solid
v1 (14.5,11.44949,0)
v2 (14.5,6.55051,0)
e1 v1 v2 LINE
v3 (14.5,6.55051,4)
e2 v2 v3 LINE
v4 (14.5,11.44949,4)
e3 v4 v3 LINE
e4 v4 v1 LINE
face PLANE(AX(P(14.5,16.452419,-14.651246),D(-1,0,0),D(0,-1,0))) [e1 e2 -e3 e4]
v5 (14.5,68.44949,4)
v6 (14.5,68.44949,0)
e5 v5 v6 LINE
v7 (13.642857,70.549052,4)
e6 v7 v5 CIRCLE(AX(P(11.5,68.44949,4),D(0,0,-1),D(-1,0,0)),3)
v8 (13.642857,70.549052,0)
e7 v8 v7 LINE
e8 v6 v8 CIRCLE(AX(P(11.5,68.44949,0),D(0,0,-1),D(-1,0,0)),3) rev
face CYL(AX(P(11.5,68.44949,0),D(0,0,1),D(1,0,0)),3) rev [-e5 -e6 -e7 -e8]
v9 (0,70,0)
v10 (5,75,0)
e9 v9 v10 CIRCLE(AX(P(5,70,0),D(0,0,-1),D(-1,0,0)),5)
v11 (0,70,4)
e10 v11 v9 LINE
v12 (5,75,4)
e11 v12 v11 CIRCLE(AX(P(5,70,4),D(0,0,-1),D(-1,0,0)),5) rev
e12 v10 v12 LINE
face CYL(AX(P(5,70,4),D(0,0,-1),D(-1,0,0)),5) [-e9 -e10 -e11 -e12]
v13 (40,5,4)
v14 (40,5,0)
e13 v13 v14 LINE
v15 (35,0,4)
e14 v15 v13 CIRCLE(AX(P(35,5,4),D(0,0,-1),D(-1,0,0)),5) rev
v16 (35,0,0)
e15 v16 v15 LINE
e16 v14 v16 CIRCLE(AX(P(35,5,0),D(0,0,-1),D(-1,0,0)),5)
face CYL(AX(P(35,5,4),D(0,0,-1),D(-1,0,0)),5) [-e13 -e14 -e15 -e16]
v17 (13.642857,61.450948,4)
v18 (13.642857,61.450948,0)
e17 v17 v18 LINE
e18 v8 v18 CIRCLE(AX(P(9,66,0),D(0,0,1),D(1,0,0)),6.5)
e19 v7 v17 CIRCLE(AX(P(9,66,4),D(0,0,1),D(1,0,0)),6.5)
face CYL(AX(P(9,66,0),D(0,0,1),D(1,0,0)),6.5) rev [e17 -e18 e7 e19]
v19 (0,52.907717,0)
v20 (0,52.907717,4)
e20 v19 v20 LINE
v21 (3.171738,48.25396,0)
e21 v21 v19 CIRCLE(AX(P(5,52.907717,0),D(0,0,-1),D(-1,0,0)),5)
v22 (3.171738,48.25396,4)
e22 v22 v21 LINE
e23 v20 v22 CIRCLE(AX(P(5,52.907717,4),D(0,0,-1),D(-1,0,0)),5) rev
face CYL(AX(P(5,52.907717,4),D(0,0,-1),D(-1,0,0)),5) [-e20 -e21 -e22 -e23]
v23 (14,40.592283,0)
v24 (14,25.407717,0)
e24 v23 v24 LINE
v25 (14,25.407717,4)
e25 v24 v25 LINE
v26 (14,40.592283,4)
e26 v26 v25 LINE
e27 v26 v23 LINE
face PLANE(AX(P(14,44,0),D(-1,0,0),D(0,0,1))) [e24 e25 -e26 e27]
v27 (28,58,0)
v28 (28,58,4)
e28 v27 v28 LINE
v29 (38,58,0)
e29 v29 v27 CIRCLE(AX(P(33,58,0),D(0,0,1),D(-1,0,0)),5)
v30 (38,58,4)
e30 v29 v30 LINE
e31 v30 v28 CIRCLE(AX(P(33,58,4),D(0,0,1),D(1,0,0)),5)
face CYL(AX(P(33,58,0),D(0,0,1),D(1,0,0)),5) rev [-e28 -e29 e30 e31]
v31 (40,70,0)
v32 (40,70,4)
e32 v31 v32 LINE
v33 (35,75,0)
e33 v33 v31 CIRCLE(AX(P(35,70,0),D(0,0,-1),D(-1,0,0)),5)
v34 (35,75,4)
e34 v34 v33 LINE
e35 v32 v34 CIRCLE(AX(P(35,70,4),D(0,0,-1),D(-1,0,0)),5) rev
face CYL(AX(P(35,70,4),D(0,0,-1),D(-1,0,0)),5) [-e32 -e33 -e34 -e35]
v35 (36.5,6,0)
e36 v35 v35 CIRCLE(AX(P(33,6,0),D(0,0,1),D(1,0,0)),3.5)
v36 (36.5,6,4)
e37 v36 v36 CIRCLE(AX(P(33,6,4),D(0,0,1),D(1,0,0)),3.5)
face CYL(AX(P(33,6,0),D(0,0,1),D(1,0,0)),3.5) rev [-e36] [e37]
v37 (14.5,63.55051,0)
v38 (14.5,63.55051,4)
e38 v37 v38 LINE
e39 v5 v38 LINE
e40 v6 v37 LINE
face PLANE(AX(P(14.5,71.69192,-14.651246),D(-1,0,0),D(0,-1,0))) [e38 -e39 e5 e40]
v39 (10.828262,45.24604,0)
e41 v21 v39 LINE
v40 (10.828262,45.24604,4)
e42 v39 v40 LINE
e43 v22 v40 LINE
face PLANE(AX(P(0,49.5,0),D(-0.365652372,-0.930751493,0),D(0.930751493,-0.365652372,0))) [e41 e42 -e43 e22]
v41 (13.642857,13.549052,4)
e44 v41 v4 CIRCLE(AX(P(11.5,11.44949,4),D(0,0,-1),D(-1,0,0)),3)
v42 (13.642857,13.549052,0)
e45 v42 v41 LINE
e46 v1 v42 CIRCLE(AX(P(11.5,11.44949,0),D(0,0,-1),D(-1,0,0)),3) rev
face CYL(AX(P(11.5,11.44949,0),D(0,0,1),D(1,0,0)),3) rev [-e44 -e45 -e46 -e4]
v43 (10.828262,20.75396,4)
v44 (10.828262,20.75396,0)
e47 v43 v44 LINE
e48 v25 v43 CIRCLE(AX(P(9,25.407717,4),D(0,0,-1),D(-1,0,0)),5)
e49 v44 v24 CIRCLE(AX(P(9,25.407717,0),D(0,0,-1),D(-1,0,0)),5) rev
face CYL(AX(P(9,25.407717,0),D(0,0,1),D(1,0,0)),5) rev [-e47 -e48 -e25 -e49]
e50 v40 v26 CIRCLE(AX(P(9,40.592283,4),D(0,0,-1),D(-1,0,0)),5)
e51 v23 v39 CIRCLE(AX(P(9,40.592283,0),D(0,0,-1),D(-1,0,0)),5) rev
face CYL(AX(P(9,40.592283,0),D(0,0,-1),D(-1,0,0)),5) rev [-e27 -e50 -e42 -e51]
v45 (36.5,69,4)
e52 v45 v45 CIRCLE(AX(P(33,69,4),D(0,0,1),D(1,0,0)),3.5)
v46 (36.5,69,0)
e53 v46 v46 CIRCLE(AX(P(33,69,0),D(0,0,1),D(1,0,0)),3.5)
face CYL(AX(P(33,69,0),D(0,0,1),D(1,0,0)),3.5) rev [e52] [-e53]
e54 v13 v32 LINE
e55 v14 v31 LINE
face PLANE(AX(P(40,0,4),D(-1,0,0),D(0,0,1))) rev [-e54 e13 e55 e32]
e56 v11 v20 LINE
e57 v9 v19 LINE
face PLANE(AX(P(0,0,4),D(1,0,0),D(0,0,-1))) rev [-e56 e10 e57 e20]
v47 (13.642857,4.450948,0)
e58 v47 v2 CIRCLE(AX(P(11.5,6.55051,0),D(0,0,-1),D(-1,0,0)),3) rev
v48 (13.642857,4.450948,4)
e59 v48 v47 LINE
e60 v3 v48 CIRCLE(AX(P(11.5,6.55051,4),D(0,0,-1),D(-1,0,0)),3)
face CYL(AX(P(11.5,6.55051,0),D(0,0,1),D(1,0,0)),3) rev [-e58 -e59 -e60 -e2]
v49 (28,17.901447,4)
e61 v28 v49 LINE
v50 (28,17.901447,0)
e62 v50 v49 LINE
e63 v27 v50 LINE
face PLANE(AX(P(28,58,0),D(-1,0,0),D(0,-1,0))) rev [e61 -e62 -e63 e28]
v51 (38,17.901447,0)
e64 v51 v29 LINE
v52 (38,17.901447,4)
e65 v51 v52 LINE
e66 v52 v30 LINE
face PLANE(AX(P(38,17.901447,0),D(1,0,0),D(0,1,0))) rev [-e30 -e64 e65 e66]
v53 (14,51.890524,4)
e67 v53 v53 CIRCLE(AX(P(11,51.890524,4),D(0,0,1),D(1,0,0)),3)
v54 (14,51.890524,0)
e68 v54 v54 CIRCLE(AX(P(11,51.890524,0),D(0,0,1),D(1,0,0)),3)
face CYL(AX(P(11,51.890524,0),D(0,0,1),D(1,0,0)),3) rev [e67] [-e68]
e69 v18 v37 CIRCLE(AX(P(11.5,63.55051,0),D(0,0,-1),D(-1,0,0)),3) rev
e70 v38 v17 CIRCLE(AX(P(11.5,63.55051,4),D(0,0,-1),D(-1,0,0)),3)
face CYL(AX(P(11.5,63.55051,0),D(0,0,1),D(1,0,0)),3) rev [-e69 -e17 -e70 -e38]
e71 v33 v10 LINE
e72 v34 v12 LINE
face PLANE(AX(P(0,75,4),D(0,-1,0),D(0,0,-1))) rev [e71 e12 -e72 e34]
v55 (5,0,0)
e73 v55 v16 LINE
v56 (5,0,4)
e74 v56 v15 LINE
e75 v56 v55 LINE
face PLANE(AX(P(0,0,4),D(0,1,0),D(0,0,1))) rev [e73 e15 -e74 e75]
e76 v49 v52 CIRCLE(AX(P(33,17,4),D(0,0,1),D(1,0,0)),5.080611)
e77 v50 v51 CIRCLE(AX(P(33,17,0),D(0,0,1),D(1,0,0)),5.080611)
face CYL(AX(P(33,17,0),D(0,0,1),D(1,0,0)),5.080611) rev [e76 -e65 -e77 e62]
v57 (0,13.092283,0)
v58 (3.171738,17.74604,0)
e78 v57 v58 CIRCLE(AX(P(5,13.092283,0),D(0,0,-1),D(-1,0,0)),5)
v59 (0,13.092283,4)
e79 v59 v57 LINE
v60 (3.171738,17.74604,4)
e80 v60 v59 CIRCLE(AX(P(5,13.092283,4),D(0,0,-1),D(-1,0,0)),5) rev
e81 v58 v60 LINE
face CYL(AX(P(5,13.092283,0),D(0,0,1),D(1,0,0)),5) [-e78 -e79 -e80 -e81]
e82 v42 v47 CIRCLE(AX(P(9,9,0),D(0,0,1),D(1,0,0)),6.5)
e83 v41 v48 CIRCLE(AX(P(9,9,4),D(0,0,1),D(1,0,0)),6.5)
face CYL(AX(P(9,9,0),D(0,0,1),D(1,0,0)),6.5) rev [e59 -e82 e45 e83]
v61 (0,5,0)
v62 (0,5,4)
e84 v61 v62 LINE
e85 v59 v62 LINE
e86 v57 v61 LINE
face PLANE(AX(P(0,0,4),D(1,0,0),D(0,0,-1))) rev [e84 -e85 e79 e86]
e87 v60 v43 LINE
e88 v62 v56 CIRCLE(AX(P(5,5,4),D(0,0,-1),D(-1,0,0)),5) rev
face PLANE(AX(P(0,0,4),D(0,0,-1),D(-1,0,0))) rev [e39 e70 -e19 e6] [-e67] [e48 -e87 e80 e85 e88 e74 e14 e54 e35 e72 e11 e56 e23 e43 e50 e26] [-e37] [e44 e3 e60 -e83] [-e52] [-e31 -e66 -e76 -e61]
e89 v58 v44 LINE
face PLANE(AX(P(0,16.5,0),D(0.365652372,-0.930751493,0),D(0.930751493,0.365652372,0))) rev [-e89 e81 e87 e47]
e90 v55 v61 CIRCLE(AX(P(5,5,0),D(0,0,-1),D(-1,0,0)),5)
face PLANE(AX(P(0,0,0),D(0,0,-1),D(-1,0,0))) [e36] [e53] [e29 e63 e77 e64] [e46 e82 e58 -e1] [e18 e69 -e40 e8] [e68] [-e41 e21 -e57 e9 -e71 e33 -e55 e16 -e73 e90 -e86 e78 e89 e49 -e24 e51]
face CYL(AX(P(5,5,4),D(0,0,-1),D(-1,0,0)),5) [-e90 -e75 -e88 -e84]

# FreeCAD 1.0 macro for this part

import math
import FreeCAD as App
import Part
import Sketcher


def edges_at(feature, points):
    """Names of the edges that pass closest to the given points."""
    edges = feature.Shape.Edges
    near = lambda p: min(range(len(edges)), key=lambda i: edges[i].distToShape(Part.Vertex(*p))[0])
    return sorted({f"Edge{near(p) + 1}" for p in points})


def add_polygon(sketch, points):
    """Adds a closed chain of lines whose ends are joined by coincident constraints."""
    first, n = sketch.GeometryCount, len(points)
    for a, b in zip(points, points[1:] + points[:1]):
        sketch.addGeometry(Part.LineSegment(App.Vector(*a, 0), App.Vector(*b, 0)), False)
    for i in range(n):
        sketch.addConstraint(Sketcher.Constraint("Coincident", first + i, 2, first + (i + 1) % n, 1))

doc = App.newDocument("Part")
body = doc.addObject("PartDesign::Body", "Body")

# Sketch on XY plane
sketch1 = body.newObject("Sketcher::SketchObject", "Sketch")
sketch1.AttachmentSupport = (doc.getObject("XY_Plane"), [""])
sketch1.MapMode = "FlatFace"
add_polygon(sketch1, [(0, 75), (0, 0), (40, 0), (40, 75)])  # lines 0-3
sketch1.addConstraint([
    Sketcher.Constraint("Vertical", 0),
    Sketcher.Constraint("Horizontal", 1),
    Sketcher.Constraint("Vertical", 2),
    Sketcher.Constraint("Horizontal", 3),
    Sketcher.Constraint("Coincident", 0, 2, -1, 1),
    Sketcher.Constraint("DistanceX", 1, 1, 1, 2, 40.0),
    Sketcher.Constraint("DistanceY", 0, 2, 0, 1, 75.0),
])
pad1 = body.newObject("PartDesign::Pad", "Pad")
pad1.Profile = sketch1
pad1.Length = 4

# Sketch on XY plane
sketch2 = body.newObject("Sketcher::SketchObject", "Sketch001")
sketch2.AttachmentSupport = (doc.getObject("XY_Plane"), [""])
sketch2.MapMode = "FlatFace"
sketch2.AttachmentOffset = App.Placement(App.Vector(0, 0, 4), App.Rotation())
add_polygon(sketch2, [(0, 49.5), (0, 16.5), (14, 22), (14, 44)])  # lines 0-3
sketch2.addConstraint([
    Sketcher.Constraint("Vertical", 0),
    Sketcher.Constraint("Vertical", 2),
    Sketcher.Constraint("PointOnObject", 0, 2, -2),
    Sketcher.Constraint("Equal", 1, 3),
    Sketcher.Constraint("DistanceY", 0, 2, 0, 1, 33.0),
    Sketcher.Constraint("DistanceY", 2, 1, 2, 2, 22.0),
    Sketcher.Constraint("DistanceX", -1, 1, 1, 2, 14.0),
    Sketcher.Constraint("DistanceY", -1, 1, 1, 2, 22.0),
])
pocket1 = body.newObject("PartDesign::Pocket", "Pocket")
pocket1.Profile = sketch2
pocket1.Type = "ThroughAll"

# Sketch on XY plane
sketch3 = body.newObject("Sketcher::SketchObject", "Sketch002")
sketch3.AttachmentSupport = (doc.getObject("XY_Plane"), [""])
sketch3.MapMode = "FlatFace"
sketch3.AttachmentOffset = App.Placement(App.Vector(0, 0, 4), App.Rotation())
sketch3.addGeometry([
    Part.Circle(App.Vector(9, 66, 0), App.Vector(0, 0, 1), 6.5),
    Part.Circle(App.Vector(9, 9, 0), App.Vector(0, 0, 1), 6.5),
    Part.Circle(App.Vector(11, 51.890524, 0), App.Vector(0, 0, 1), 3),
], False)
sketch3.addConstraint([
    Sketcher.Constraint("Equal", 0, 1),
    Sketcher.Constraint("Vertical", 0, 3, 1, 3),
    Sketcher.Constraint("Diameter", 0, 13.0),
    Sketcher.Constraint("Diameter", 2, 6.0),
    Sketcher.Constraint("DistanceX", -1, 1, 0, 3, 9.0),
    Sketcher.Constraint("DistanceY", -1, 1, 0, 3, 66.0),
    Sketcher.Constraint("DistanceY", -1, 1, 1, 3, 9.0),
    Sketcher.Constraint("DistanceX", -1, 1, 2, 3, 11.0),
    Sketcher.Constraint("DistanceY", -1, 1, 2, 3, 51.890524),
])
pocket2 = body.newObject("PartDesign::Pocket", "Pocket001")
pocket2.Profile = sketch3
pocket2.Type = "ThroughAll"
doc.recompute()

fillet = body.newObject("PartDesign::Fillet", "Fillet")
fillet.Base = (pocket2, edges_at(pocket2, [
    (0, 16.5, 2),
    (0, 49.5, 2),
    (14, 44, 2),
    (14, 22, 2),
    (0, 75, 2),
    (40, 75, 2),
    (40, 0, 2),
    (0, 0, 2),
]))
fillet.Radius = 5

# Sketch on XY plane
sketch4 = body.newObject("Sketcher::SketchObject", "Sketch003")
sketch4.AttachmentSupport = (doc.getObject("XY_Plane"), [""])
sketch4.MapMode = "FlatFace"
sketch4.AttachmentOffset = App.Placement(App.Vector(0, 0, 4), App.Rotation())
sketch4.addGeometry([
    Part.Circle(App.Vector(33, 69, 0), App.Vector(0, 0, 1), 3.5),
    Part.Circle(App.Vector(33, 6, 0), App.Vector(0, 0, 1), 3.5),
], False)
sketch4.addConstraint([
    Sketcher.Constraint("Equal", 0, 1),
    Sketcher.Constraint("Vertical", 0, 3, 1, 3),
    Sketcher.Constraint("Diameter", 0, 7.0),
    Sketcher.Constraint("DistanceX", -1, 1, 0, 3, 33.0),
    Sketcher.Constraint("DistanceY", -1, 1, 0, 3, 69.0),
    Sketcher.Constraint("DistanceY", -1, 1, 1, 3, 6.0),
])
pocket3 = body.newObject("PartDesign::Pocket", "Pocket002")
pocket3.Profile = sketch4
pocket3.Type = "ThroughAll"

# Sketch on XY plane
sketch5 = body.newObject("Sketcher::SketchObject", "Sketch004")
sketch5.AttachmentSupport = (doc.getObject("XY_Plane"), [""])
sketch5.MapMode = "FlatFace"
sketch5.AttachmentOffset = App.Placement(App.Vector(0, 0, 4), App.Rotation())
sketch5.addGeometry([
    Part.LineSegment(App.Vector(28, 58, 0), App.Vector(28, 17.901447, 0)),
    Part.ArcOfCircle(Part.Circle(App.Vector(33, 17, 0), App.Vector(0, 0, 1), 5.080611), math.radians(169.779969), math.radians(370.220031)),
    Part.LineSegment(App.Vector(38, 17.901447, 0), App.Vector(38, 58, 0)),
    Part.ArcOfCircle(Part.Circle(App.Vector(33, 58, 0), App.Vector(0, 0, 1), 5), math.radians(0), math.radians(180)),
], False)
sketch5.addConstraint([
    Sketcher.Constraint("Coincident", 0, 2, 1, 1),
    Sketcher.Constraint("Coincident", 1, 2, 2, 1),
    Sketcher.Constraint("Tangent", 2, 2, 3, 1),
    Sketcher.Constraint("Tangent", 3, 2, 0, 1),
    Sketcher.Constraint("Vertical", 0),
    Sketcher.Constraint("Vertical", 2),
    Sketcher.Constraint("Horizontal", 0, 2, 1, 2),
    Sketcher.Constraint("Radius", 3, 5.0),
    Sketcher.Constraint("DistanceX", -1, 1, 1, 3, 33.0),
    Sketcher.Constraint("DistanceY", -1, 1, 1, 3, 17.0),
    Sketcher.Constraint("DistanceY", -1, 1, 3, 3, 58.0),
    Sketcher.Constraint("Radius", 1, 5.080611),
])
pocket4 = body.newObject("PartDesign::Pocket", "Pocket003")
pocket4.Profile = sketch5
pocket4.Type = "ThroughAll"
pocket4.Midplane = True

# Sketch on XY plane
sketch6 = body.newObject("Sketcher::SketchObject", "Sketch005")
sketch6.AttachmentSupport = (doc.getObject("XY_Plane"), [""])
sketch6.MapMode = "FlatFace"
sketch6.AttachmentOffset = App.Placement(App.Vector(0, 0, 4), App.Rotation())
add_polygon(sketch6, [(14.5, 71.69192), (14.5, 58.381197), (18.326833, 58.381197), (18.326833, 71.69192)])  # lines 0-3
add_polygon(sketch6, [(14.5, 16.452419), (14.5, 2.309776), (18.326833, 2.309776), (18.326833, 16.452419)])  # lines 4-7
sketch6.addConstraint([
    Sketcher.Constraint("Vertical", 0),
    Sketcher.Constraint("Horizontal", 1),
    Sketcher.Constraint("Vertical", 2),
    Sketcher.Constraint("Horizontal", 3),
    Sketcher.Constraint("Vertical", 4),
    Sketcher.Constraint("Horizontal", 5),
    Sketcher.Constraint("Vertical", 6),
    Sketcher.Constraint("Horizontal", 7),
    Sketcher.Constraint("Vertical", 3, 2, 4, 2),
    Sketcher.Constraint("Vertical", 2, 2, 5, 2),
    Sketcher.Constraint("DistanceX", -1, 1, 0, 2, 14.5),
    Sketcher.Constraint("DistanceY", 6, 2, 2, 2, 55.239501),
    Sketcher.Constraint("DistanceX", 1, 1, 1, 2, 3.826833),
    Sketcher.Constraint("DistanceY", 0, 2, 0, 1, 13.310723),
    Sketcher.Constraint("DistanceY", 4, 2, 4, 1, 14.142643),
    Sketcher.Constraint("DistanceY", -1, 1, 2, 2, 71.69192),
])
pad2 = body.newObject("PartDesign::Pad", "Pad001")
pad2.Profile = sketch6
pad2.Length = 4
pad2.Reversed = True
doc.recompute()

fillet2 = body.newObject("PartDesign::Fillet", "Fillet001")
fillet2.Base = (pad2, edges_at(pad2, [
    (14.5, 69.464, 2),
    (14.5, 62.536, 2),
    (14.5, 12.464, 2),
    (14.5, 5.536, 2),
]))
fillet2.Radius = 3

doc.recompute()
